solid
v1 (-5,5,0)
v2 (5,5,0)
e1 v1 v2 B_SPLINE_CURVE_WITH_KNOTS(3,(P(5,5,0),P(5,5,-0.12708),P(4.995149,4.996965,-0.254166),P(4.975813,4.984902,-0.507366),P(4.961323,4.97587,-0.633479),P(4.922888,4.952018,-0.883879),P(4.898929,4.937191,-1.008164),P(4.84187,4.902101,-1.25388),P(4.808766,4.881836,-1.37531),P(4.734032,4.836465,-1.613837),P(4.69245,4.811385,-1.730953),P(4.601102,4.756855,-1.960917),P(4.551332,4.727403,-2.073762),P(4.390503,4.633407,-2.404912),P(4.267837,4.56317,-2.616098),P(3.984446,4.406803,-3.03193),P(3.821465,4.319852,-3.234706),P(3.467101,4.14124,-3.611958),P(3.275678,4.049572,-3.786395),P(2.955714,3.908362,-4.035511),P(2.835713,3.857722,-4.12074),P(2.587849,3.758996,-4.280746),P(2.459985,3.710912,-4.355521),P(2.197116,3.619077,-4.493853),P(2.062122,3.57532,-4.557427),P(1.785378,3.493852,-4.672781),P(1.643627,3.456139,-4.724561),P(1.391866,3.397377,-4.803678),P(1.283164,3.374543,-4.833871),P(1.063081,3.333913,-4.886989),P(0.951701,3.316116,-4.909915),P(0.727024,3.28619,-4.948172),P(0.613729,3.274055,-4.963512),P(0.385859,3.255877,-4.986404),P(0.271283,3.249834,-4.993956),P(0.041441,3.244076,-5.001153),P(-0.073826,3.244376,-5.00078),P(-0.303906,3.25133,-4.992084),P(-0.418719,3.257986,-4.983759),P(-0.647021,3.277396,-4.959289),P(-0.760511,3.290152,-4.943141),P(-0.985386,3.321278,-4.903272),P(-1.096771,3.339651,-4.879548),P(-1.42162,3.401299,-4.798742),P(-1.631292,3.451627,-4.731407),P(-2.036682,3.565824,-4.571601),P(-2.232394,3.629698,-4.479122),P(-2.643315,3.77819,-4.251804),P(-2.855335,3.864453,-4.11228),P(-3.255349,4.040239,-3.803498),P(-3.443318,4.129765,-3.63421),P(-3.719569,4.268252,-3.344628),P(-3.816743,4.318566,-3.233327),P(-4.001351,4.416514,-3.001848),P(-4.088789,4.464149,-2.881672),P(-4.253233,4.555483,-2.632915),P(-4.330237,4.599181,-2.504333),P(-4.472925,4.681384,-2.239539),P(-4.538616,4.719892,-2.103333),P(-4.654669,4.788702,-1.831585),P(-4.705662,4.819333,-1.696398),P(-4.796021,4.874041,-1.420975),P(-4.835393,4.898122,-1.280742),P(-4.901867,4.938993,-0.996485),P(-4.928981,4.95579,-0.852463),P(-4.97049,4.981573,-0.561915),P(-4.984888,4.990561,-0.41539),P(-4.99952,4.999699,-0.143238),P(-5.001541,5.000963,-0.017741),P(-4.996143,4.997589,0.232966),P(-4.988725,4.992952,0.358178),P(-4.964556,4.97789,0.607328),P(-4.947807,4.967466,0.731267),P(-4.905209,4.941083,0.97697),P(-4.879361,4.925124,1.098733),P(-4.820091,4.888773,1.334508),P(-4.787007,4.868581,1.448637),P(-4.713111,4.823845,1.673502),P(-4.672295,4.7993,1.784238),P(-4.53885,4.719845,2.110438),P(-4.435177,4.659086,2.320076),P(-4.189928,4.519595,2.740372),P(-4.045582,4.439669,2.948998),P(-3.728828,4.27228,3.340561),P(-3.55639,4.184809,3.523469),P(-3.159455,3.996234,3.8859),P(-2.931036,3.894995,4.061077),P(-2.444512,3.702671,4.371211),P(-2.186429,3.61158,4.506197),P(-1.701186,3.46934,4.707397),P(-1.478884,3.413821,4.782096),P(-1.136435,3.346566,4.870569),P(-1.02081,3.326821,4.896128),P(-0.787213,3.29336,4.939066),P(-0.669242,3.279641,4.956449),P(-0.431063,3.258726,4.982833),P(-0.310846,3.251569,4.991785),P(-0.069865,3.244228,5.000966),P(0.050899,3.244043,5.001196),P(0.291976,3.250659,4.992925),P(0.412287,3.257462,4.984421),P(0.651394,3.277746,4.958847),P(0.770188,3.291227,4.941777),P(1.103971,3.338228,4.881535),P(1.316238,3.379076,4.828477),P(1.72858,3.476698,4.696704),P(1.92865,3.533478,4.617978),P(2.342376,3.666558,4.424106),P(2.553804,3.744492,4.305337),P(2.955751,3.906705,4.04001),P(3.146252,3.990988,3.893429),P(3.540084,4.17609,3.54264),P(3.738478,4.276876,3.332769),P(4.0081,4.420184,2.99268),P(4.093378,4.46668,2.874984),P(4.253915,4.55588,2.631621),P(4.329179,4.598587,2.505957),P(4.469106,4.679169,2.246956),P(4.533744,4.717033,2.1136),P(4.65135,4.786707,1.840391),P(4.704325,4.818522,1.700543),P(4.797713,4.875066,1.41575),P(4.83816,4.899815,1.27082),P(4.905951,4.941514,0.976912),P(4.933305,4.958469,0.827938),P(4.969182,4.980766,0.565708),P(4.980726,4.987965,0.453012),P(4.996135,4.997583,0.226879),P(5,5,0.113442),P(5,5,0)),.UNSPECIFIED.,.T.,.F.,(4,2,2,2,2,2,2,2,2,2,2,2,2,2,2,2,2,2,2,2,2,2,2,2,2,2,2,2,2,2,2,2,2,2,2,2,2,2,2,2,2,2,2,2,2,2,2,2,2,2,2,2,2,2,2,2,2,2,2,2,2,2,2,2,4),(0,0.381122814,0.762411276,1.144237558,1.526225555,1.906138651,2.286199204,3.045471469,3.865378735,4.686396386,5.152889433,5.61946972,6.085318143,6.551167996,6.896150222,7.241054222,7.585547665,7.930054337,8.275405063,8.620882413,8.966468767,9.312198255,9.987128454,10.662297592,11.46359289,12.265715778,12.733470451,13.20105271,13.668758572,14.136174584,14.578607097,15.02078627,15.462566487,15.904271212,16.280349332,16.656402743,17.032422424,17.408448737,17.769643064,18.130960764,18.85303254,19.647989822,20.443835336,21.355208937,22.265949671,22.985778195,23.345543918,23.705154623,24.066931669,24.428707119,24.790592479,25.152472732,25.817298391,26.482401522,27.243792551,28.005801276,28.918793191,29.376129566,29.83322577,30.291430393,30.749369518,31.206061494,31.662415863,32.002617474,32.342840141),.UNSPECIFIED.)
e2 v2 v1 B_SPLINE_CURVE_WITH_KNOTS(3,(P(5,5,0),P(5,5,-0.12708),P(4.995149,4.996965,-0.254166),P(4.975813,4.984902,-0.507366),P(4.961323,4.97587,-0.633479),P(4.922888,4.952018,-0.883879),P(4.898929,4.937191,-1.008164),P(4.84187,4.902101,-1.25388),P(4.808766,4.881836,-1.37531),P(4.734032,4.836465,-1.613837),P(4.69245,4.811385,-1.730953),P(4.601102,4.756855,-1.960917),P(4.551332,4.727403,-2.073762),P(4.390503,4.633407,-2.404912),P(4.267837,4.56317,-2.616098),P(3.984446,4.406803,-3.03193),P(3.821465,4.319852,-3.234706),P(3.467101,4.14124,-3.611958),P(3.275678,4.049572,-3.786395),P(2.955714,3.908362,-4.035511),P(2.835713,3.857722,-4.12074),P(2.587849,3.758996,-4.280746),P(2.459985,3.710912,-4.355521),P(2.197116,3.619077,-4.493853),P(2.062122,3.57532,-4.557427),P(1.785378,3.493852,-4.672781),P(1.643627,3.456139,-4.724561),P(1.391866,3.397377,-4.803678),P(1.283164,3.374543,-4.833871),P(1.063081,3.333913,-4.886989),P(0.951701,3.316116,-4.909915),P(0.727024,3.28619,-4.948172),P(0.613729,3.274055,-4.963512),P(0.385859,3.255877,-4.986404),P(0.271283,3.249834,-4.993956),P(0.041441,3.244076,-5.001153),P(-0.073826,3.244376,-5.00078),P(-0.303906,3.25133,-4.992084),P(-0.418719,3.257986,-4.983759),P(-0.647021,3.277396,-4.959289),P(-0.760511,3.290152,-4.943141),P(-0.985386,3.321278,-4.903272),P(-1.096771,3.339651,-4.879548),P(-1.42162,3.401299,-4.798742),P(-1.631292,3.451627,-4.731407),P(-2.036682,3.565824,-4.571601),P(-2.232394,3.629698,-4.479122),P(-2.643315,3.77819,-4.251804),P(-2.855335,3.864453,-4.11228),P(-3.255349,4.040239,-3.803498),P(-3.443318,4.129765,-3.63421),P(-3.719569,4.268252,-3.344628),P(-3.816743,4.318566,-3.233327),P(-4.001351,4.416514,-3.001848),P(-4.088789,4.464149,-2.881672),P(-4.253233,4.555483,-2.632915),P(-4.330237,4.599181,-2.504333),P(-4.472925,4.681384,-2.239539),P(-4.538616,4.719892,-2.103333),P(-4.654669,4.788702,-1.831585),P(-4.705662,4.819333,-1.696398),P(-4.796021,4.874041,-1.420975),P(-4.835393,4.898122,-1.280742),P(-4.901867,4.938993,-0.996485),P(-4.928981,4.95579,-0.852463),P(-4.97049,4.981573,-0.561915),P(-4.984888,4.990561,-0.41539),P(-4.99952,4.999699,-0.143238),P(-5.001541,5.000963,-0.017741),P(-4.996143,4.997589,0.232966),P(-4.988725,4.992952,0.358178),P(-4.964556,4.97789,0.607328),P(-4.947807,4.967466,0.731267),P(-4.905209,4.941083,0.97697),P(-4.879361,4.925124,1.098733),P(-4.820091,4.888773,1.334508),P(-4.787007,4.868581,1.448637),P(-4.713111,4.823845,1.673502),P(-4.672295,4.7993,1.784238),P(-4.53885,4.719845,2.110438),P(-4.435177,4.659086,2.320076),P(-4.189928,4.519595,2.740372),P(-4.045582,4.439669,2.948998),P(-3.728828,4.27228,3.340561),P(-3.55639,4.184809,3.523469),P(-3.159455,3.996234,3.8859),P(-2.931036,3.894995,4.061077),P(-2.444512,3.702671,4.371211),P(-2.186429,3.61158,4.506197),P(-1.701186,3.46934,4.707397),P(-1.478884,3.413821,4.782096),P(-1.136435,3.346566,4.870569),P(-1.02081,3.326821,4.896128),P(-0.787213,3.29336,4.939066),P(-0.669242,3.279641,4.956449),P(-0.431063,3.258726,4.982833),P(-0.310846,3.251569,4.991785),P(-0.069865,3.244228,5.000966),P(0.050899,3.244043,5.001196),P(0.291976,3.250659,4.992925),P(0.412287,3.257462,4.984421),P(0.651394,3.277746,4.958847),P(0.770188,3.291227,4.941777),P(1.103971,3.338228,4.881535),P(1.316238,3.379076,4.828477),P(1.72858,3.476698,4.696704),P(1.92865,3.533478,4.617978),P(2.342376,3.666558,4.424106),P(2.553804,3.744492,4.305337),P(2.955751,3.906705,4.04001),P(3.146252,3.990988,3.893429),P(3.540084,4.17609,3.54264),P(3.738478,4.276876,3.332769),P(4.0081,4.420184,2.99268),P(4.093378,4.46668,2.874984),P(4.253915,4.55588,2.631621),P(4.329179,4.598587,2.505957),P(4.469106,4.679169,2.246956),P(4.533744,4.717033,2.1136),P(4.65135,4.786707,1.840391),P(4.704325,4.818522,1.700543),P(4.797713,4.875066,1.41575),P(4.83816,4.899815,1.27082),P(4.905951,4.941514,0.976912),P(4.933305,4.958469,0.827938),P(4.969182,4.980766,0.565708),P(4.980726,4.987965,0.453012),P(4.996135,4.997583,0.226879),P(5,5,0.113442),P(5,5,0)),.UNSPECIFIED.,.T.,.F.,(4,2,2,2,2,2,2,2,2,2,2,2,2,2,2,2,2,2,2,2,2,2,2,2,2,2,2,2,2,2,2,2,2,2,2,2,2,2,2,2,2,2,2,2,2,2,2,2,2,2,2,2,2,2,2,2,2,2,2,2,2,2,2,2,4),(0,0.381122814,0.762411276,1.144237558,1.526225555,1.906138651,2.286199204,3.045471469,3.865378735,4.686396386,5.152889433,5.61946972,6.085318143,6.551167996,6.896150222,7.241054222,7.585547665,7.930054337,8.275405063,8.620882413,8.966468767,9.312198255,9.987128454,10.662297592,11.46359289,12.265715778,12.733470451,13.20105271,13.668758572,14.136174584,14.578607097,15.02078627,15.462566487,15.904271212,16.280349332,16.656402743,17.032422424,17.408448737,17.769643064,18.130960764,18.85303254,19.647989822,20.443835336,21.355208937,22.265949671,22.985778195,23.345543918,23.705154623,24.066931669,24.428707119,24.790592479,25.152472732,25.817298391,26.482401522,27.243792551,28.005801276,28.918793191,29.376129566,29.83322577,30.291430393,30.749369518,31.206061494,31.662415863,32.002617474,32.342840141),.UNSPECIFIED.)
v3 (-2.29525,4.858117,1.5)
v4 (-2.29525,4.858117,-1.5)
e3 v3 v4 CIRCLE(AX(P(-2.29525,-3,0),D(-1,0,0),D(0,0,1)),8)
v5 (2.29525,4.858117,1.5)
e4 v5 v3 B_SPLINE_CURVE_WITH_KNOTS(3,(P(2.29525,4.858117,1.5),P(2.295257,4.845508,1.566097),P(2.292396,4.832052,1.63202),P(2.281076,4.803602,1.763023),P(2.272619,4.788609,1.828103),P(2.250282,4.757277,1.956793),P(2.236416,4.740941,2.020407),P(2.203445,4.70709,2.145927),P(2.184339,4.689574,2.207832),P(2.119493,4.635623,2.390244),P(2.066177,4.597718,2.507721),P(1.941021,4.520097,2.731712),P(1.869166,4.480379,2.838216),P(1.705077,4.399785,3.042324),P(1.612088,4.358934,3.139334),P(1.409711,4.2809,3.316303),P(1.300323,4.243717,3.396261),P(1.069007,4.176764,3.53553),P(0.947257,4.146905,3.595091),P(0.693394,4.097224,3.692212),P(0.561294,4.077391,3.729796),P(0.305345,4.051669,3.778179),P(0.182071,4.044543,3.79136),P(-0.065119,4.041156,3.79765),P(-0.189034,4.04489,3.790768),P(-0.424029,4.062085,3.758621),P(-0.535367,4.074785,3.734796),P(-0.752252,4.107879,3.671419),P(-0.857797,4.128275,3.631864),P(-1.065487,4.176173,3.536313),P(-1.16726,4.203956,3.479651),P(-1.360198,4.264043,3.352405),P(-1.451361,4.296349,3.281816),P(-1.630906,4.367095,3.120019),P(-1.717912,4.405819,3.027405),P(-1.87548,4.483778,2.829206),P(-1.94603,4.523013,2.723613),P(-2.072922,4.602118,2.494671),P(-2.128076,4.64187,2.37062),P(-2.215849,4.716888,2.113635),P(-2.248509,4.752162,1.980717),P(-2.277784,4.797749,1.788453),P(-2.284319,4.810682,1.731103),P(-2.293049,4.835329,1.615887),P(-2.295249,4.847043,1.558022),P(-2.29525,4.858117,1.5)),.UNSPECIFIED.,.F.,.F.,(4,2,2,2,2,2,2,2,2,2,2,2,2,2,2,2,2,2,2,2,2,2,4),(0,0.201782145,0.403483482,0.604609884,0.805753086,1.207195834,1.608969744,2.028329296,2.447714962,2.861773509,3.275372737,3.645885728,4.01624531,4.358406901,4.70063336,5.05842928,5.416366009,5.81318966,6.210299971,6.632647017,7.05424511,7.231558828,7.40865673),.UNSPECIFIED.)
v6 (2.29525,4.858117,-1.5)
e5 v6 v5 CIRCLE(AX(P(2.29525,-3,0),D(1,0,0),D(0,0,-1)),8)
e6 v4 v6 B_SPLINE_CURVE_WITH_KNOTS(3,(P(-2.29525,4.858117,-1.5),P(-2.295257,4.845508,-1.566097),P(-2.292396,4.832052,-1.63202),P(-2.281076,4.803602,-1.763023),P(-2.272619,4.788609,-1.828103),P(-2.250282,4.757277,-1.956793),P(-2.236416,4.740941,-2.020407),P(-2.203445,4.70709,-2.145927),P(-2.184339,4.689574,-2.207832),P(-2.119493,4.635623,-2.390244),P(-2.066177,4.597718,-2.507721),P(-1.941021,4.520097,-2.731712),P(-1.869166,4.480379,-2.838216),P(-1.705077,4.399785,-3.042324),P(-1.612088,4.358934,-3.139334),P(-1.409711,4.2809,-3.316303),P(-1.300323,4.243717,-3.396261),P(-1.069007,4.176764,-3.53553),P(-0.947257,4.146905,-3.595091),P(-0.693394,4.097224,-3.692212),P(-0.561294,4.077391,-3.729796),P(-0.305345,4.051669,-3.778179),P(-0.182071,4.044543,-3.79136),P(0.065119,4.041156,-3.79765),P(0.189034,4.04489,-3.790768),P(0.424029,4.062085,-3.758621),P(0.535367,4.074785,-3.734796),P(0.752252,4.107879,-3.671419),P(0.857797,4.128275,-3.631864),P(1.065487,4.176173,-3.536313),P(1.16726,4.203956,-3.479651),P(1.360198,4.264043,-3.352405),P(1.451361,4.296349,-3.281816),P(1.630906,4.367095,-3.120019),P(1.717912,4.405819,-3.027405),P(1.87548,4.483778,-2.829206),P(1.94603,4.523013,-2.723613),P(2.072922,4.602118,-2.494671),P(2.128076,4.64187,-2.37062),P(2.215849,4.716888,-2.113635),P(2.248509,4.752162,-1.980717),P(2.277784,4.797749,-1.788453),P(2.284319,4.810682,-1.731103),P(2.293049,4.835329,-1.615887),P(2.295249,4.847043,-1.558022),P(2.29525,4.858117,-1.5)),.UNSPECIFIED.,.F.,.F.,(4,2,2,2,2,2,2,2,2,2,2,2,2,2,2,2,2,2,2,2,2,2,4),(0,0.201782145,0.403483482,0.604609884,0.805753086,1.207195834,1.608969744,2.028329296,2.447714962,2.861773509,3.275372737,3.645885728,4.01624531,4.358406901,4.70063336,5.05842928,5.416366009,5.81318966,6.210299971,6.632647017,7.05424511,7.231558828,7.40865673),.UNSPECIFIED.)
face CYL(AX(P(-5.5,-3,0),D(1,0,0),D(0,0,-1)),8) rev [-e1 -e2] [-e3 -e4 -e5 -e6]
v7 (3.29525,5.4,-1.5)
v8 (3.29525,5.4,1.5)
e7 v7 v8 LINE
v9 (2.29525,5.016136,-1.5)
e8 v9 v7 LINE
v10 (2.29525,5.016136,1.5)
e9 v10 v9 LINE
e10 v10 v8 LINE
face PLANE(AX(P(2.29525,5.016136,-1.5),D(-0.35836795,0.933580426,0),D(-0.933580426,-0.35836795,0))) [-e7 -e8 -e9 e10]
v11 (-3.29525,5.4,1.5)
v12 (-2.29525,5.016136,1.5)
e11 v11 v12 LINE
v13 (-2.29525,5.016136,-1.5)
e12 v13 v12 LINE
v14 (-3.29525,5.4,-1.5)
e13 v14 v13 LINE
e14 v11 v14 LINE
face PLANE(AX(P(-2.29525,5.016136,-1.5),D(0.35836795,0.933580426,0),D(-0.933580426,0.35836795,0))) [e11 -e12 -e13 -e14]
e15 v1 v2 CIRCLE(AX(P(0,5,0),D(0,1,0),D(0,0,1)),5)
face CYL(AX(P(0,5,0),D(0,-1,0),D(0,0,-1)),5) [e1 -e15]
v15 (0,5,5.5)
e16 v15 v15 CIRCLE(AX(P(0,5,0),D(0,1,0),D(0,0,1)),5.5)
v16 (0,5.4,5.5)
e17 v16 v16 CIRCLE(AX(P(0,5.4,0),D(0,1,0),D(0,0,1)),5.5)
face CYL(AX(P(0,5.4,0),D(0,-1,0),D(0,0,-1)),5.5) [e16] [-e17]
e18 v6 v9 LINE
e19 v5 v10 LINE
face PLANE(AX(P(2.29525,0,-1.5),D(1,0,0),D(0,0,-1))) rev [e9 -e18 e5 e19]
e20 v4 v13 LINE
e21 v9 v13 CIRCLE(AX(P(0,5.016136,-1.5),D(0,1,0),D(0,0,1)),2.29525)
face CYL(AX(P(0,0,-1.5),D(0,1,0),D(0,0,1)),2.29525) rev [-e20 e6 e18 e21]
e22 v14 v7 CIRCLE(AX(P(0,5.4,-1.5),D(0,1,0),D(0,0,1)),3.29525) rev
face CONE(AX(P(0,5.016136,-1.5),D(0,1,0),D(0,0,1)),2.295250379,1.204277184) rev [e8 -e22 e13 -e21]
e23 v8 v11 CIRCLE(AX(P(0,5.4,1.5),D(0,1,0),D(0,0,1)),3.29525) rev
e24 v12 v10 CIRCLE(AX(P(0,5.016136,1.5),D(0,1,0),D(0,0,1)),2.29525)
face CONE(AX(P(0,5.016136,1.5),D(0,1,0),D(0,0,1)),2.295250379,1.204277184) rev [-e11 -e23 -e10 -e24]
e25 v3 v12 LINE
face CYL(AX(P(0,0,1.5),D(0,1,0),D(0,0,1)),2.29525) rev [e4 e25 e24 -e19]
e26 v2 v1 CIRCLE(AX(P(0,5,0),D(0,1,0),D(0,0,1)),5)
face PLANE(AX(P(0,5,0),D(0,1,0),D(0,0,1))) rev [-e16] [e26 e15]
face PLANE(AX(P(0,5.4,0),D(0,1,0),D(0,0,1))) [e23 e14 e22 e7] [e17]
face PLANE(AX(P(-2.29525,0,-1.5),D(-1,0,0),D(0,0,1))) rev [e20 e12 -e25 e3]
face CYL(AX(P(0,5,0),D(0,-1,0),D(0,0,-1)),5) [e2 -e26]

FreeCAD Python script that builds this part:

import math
import FreeCAD as App
import Part
import Sketcher
Q = App.Units.Quantity


def edges_at(feature, points):
    """Names of the edges that pass closest to the given points."""
    edges = feature.Shape.Edges
    near = lambda p: min(range(len(edges)), key=lambda i: edges[i].distToShape(Part.Vertex(*p))[0])
    return sorted({f"Edge{near(p) + 1}" for p in points})

doc = App.newDocument("Part")
body = doc.addObject("PartDesign::Body", "Body")

# Sketch on XZ plane
sketch1 = body.newObject("Sketcher::SketchObject", "Sketch")
sketch1.AttachmentSupport = (doc.getObject("XZ_Plane"), [""])
sketch1.MapMode = "FlatFace"
sketch1.addGeometry(Part.Circle(App.Vector(0, 0, 0), App.Vector(0, 0, 1), 5), False)
sketch1.addConstraint([
    Sketcher.Constraint("Coincident", 0, 3, -1, 1),
    Sketcher.Constraint("Diameter", 0, Q("10 mm")),
])
pad1 = body.newObject("PartDesign::Pad", "Pad")
pad1.Profile = sketch1
pad1.Length = 5
pad1.Reversed = True

# Sketch on XZ plane
sketch2 = body.newObject("Sketcher::SketchObject", "Sketch001")
sketch2.AttachmentSupport = (doc.getObject("XZ_Plane"), [""])
sketch2.MapMode = "FlatFace"
sketch2.AttachmentOffset = App.Placement(App.Vector(0, 0, -5), App.Rotation())
sketch2.addGeometry(Part.Circle(App.Vector(0, 0, 0), App.Vector(0, 0, 1), 6), False)
sketch2.addConstraint([
    Sketcher.Constraint("Coincident", 0, 3, -1, 1),
    Sketcher.Constraint("Diameter", 0, Q("11 mm")),
])
pad2 = body.newObject("PartDesign::Pad", "Pad001")
pad2.Profile = sketch2
pad2.Length = 0.4
pad2.Reversed = True

# Sketch on XZ plane
sketch3 = body.newObject("Sketcher::SketchObject", "Sketch002")
sketch3.AttachmentSupport = (doc.getObject("XZ_Plane"), [""])
sketch3.MapMode = "FlatFace"
sketch3.AttachmentOffset = App.Placement(App.Vector(0, 0, -5.4), App.Rotation())
sketch3.addGeometry([
    Part.LineSegment(App.Vector(2.3, 1.5, 0), App.Vector(2.3, -1.5, 0)),
    Part.ArcOfCircle(Part.Circle(App.Vector(0, -1.5, 0), App.Vector(0, 0, 1), 2.3), math.radians(180), math.radians(360)),
    Part.LineSegment(App.Vector(-2.3, -1.5, 0), App.Vector(-2.3, 1.5, 0)),
    Part.ArcOfCircle(Part.Circle(App.Vector(0, 1.5, 0), App.Vector(0, 0, 1), 2.3), math.radians(0), math.radians(180)),
], False)
sketch3.addConstraint([
    Sketcher.Constraint("Tangent", 0, 2, 1, 2),
    Sketcher.Constraint("Tangent", 1, 1, 2, 1),
    Sketcher.Constraint("Tangent", 2, 2, 3, 2),
    Sketcher.Constraint("Tangent", 3, 1, 0, 1),
    Sketcher.Constraint("Vertical", 0),
    Sketcher.Constraint("Vertical", 2),
    Sketcher.Constraint("Symmetric", 1, 3, 3, 3, -1, 1),
    Sketcher.Constraint("DistanceY", 0, 2, 0, 1, Q("3 mm")),
    Sketcher.Constraint("Radius", 1, Q("2.29525 mm")),
])
pocket1 = body.newObject("PartDesign::Pocket", "Pocket")
pocket1.Profile = sketch3
pocket1.Type = "ThroughAll"
pocket1.Reversed = True

# Sketch on YZ plane
sketch4 = body.newObject("Sketcher::SketchObject", "Sketch003")
sketch4.AttachmentSupport = (doc.getObject("YZ_Plane"), [""])
sketch4.MapMode = "FlatFace"
sketch4.addGeometry(Part.Circle(App.Vector(-3, 0, 0), App.Vector(0, 0, 1), 8), False)
sketch4.addConstraint([
    Sketcher.Constraint("PointOnObject", 0, 3, -1),
    Sketcher.Constraint("Diameter", 0, Q("16 mm")),
    Sketcher.Constraint("DistanceX", 0, 3, -1, 1, Q("3 mm")),
])
pocket2 = body.newObject("PartDesign::Pocket", "Pocket001")
pocket2.Profile = sketch4
pocket2.Type = "ThroughAll"
pocket2.Midplane = True
doc.recompute()

chamfer = body.newObject("PartDesign::Chamfer", "Chamfer")
chamfer.Base = (pocket2, edges_at(pocket2, [
    (0, 5.4, -3.795),
    (-2.295, 5.4, 0),
    (0, 5.4, 3.795),
    (2.295, 5.4, 0),
]))
chamfer.ChamferType = "Two distances"
chamfer.Size = 1
chamfer.Size2 = 0.383864

doc.recompute()
